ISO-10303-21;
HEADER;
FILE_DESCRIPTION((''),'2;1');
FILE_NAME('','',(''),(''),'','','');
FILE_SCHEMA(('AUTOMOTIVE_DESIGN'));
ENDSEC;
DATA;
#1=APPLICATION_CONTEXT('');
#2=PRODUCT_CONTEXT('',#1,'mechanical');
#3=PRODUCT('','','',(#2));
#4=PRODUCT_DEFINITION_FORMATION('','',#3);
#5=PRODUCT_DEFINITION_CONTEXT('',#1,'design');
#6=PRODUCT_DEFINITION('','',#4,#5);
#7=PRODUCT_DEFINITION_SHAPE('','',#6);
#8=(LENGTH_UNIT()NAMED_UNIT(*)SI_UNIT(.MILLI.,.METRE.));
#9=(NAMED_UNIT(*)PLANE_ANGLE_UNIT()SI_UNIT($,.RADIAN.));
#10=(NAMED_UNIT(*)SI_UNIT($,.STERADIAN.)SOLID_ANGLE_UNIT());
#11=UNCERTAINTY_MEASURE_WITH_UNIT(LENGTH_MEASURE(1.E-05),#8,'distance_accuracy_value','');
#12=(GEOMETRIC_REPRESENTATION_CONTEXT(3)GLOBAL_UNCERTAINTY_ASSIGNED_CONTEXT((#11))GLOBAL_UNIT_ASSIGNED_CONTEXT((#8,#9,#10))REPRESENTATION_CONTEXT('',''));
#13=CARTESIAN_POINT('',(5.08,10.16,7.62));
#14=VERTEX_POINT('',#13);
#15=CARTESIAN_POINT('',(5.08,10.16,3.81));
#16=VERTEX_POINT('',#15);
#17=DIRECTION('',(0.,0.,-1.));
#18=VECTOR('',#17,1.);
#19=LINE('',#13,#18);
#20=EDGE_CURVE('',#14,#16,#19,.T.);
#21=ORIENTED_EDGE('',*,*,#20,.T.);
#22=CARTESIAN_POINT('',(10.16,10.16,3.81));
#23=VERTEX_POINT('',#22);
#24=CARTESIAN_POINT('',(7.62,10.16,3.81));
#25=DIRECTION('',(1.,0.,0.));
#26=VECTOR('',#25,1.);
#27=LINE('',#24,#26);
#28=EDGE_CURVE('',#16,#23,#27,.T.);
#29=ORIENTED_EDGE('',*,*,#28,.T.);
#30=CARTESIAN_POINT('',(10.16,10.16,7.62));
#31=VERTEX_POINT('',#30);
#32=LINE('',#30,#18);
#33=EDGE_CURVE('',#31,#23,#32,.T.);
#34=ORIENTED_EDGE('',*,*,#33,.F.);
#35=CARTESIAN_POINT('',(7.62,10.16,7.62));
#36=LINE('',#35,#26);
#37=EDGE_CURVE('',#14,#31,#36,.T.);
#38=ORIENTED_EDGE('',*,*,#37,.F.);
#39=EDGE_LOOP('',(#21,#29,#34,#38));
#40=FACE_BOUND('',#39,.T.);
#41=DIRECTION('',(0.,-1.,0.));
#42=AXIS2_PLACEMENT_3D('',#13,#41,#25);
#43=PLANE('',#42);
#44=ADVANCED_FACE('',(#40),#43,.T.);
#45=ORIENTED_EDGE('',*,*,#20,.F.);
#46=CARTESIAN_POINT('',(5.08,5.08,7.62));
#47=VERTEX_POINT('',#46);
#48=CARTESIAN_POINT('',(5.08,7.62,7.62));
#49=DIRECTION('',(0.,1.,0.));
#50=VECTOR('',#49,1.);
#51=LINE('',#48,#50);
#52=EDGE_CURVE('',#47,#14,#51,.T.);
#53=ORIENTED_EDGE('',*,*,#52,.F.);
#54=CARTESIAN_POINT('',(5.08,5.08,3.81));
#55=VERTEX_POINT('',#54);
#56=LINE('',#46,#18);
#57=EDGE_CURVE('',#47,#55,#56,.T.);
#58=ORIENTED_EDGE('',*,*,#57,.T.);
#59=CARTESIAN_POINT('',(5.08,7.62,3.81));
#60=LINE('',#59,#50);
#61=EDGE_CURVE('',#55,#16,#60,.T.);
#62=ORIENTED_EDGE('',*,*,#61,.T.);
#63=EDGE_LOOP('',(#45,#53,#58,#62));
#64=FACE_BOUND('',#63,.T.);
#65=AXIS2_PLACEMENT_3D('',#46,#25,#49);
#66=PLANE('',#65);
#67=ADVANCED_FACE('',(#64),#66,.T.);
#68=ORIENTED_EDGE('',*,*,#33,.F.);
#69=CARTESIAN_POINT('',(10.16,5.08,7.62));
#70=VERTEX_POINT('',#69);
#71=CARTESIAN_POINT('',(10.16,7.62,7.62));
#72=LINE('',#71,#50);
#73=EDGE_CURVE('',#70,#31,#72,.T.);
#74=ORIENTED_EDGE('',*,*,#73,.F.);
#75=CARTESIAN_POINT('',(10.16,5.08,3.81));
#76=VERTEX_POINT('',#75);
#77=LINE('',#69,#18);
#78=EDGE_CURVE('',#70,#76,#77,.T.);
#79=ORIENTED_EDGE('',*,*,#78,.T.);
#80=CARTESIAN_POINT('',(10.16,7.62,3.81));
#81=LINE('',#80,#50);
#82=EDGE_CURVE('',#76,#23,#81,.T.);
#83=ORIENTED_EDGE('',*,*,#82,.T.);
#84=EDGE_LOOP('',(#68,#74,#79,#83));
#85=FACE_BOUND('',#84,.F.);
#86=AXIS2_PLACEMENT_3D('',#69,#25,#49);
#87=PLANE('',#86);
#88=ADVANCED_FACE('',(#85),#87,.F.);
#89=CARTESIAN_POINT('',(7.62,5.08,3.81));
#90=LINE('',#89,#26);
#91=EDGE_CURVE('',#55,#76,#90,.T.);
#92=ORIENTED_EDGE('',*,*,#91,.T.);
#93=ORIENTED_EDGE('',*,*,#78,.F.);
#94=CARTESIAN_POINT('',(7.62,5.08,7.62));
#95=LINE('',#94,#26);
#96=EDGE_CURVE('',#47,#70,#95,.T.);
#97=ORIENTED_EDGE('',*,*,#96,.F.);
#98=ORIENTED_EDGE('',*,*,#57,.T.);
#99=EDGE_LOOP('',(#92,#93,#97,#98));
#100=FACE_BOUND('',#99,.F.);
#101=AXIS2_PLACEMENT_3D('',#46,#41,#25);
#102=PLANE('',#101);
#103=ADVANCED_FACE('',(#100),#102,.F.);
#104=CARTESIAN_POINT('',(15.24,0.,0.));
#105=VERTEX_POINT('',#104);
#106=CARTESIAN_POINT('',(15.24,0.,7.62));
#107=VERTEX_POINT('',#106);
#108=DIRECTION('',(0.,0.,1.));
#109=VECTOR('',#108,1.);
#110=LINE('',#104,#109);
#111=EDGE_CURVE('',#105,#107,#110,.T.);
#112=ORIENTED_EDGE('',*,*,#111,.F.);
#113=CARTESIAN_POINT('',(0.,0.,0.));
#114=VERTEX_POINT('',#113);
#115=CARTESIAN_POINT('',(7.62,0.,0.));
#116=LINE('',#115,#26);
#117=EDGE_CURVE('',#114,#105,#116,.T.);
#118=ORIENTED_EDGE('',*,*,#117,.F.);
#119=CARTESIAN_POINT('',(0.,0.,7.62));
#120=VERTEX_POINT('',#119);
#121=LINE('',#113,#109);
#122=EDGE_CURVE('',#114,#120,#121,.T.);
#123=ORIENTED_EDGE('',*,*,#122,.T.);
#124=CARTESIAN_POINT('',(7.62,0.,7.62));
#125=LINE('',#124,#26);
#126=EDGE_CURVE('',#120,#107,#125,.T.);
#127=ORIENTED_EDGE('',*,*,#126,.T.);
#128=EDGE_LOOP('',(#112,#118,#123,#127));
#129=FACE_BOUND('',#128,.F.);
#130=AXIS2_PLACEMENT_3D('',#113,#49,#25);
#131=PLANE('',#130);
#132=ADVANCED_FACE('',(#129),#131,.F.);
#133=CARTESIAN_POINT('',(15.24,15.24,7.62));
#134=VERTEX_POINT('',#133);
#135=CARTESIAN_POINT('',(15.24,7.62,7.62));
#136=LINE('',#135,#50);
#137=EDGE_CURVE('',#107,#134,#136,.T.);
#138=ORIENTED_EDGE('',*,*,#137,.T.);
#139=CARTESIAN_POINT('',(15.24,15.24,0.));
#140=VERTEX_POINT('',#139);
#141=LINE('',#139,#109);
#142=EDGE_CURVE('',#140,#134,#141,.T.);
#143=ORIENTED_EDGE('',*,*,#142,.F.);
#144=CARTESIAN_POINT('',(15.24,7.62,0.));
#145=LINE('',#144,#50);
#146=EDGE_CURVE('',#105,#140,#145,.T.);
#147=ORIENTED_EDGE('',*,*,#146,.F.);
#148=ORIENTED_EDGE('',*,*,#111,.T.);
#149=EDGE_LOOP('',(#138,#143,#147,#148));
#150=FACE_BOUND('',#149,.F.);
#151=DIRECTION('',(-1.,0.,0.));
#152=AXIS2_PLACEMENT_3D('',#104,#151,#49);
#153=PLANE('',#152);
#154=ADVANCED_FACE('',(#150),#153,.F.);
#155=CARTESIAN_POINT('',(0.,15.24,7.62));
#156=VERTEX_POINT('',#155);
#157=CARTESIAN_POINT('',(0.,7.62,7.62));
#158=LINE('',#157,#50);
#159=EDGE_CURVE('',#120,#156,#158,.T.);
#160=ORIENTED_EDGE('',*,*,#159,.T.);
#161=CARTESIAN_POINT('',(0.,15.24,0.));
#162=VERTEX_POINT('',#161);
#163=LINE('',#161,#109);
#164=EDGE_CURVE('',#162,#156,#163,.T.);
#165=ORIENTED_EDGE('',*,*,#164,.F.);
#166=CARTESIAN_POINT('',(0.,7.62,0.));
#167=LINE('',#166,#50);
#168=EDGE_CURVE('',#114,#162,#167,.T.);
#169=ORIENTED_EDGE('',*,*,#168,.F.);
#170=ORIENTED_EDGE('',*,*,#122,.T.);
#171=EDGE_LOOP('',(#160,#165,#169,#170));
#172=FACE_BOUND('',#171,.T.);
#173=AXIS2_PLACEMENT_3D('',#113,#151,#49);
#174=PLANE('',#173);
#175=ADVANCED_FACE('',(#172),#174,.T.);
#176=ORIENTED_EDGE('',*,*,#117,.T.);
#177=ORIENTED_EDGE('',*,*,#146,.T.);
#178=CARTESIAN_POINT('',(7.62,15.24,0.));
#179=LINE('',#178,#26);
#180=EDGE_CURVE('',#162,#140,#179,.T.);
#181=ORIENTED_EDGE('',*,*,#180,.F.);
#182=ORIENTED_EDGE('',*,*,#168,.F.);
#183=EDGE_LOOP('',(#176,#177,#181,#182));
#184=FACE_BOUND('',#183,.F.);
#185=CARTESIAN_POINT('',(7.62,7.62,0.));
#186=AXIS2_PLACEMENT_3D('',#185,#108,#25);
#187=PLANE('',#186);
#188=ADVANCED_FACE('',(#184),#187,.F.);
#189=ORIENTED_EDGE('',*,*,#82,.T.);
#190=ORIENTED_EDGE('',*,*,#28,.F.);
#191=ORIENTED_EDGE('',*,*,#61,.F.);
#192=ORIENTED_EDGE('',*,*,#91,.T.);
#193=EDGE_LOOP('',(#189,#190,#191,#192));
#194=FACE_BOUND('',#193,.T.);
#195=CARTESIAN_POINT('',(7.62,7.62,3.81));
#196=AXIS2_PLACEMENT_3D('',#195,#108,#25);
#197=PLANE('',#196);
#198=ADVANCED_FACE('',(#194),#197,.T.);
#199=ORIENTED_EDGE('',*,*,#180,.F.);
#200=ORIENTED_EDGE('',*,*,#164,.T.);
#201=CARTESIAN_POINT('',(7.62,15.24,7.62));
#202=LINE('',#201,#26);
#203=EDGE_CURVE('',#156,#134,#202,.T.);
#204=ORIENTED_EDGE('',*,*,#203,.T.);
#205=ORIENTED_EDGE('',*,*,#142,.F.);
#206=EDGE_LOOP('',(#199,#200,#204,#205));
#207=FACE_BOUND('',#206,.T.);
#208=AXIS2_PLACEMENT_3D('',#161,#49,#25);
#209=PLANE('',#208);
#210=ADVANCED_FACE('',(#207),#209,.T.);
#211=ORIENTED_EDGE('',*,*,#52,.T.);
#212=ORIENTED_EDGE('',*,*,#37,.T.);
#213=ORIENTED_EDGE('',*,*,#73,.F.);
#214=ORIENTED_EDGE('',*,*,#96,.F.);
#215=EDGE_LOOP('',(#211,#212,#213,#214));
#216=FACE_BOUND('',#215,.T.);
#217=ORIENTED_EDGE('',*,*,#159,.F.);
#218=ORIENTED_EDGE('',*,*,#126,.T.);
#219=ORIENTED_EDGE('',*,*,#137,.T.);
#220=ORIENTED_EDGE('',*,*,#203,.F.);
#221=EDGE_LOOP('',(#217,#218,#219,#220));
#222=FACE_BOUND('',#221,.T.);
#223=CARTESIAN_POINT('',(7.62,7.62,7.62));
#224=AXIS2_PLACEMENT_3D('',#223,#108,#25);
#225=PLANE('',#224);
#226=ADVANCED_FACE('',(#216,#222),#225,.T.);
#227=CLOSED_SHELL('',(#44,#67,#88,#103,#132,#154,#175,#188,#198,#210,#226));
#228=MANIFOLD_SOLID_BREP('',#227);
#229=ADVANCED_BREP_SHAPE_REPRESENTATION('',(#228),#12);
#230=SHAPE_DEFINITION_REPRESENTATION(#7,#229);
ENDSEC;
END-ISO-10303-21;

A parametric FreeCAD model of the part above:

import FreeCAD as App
import Part
import Sketcher

V = App.Vector
Q = App.Units.Quantity

doc = App.newDocument("Part")
params = doc.addObject("Spreadsheet::Sheet", "Params")
for row, (alias, value) in enumerate([
    ("sketch1_width", "0.6 in"),
    ("pad1_length", "0.3 in"),
    ("sketch2_width", "0.2 in"),
    ("pocket1_length", "0.15 in"),
], start=1):
    params.set(f"A{row}", alias)
    params.set(f"B{row}", "=" + value)
    params.setAlias(f"B{row}", alias)

body = doc.addObject("PartDesign::Body", "Body")

sketch1 = doc.addObject("Sketcher::SketchObject", "Sketch")
body.addObject(sketch1)
sketch1.AttachmentSupport = (doc.XY_Plane, [""])
sketch1.MapMode = "FlatFace"
sketch1.addGeometry([
    Part.LineSegment(V(0, 15, 0), V(0, 0, 0)),
    Part.LineSegment(V(0, 0, 0), V(15, 0, 0)),
    Part.LineSegment(V(15, 0, 0), V(15, 15, 0)),
    Part.LineSegment(V(15, 15, 0), V(0, 15, 0)),
], False)
sketch1.addConstraint([
    Sketcher.Constraint("Coincident", 0, 2, 1, 1),
    Sketcher.Constraint("Coincident", 1, 2, 2, 1),
    Sketcher.Constraint("Coincident", 2, 2, 3, 1),
    Sketcher.Constraint("Coincident", 3, 2, 0, 1),
    Sketcher.Constraint("Vertical", 0),
    Sketcher.Constraint("Horizontal", 1),
    Sketcher.Constraint("Vertical", 2),
    Sketcher.Constraint("Horizontal", 3),
    Sketcher.Constraint("Coincident", 0, 2, -1, 1),
    Sketcher.Constraint("Equal", 3, 0),
    Sketcher.Constraint("DistanceX", 1, 1, 1, 2, Q("0.6 in")),
])
sketch1.setExpression("Constraints[10]", "Params.sketch1_width")
pad1 = doc.addObject("PartDesign::Pad", "Pad")
body.addObject(pad1)
pad1.Profile = sketch1
pad1.setExpression("Length", "Params.pad1_length")

sketch2 = doc.addObject("Sketcher::SketchObject", "Sketch001")
body.addObject(sketch2)
sketch2.AttachmentSupport = (doc.XY_Plane, [""])
sketch2.MapMode = "FlatFace"
sketch2.AttachmentOffset = App.Placement(V(0, 0, 0.3 * 25.4), App.Rotation())
sketch2.addGeometry([
    Part.LineSegment(V(5, 10, 0), V(5, 5, 0)),
    Part.LineSegment(V(5, 5, 0), V(10, 5, 0)),
    Part.LineSegment(V(10, 5, 0), V(10, 10, 0)),
    Part.LineSegment(V(10, 10, 0), V(5, 10, 0)),
], False)
sketch2.addConstraint([
    Sketcher.Constraint("Coincident", 0, 2, 1, 1),
    Sketcher.Constraint("Coincident", 1, 2, 2, 1),
    Sketcher.Constraint("Coincident", 2, 2, 3, 1),
    Sketcher.Constraint("Coincident", 3, 2, 0, 1),
    Sketcher.Constraint("Vertical", 0),
    Sketcher.Constraint("Horizontal", 1),
    Sketcher.Constraint("Vertical", 2),
    Sketcher.Constraint("Horizontal", 3),
    Sketcher.Constraint("Equal", 3, 0),
    Sketcher.Constraint("DistanceX", 1, 1, 1, 2, Q("0.2 in")),
    Sketcher.Constraint("DistanceX", -1, 1, 0, 2, Q("0.2 in")),
    Sketcher.Constraint("DistanceY", -1, 1, 0, 2, Q("0.2 in")),
])
sketch2.setExpression("Constraints[9]", "Params.sketch2_width")
pocket1 = doc.addObject("PartDesign::Pocket", "Pocket")
body.addObject(pocket1)
pocket1.Profile = sketch2
pocket1.setExpression("Length", "Params.pocket1_length")

doc.recompute()
